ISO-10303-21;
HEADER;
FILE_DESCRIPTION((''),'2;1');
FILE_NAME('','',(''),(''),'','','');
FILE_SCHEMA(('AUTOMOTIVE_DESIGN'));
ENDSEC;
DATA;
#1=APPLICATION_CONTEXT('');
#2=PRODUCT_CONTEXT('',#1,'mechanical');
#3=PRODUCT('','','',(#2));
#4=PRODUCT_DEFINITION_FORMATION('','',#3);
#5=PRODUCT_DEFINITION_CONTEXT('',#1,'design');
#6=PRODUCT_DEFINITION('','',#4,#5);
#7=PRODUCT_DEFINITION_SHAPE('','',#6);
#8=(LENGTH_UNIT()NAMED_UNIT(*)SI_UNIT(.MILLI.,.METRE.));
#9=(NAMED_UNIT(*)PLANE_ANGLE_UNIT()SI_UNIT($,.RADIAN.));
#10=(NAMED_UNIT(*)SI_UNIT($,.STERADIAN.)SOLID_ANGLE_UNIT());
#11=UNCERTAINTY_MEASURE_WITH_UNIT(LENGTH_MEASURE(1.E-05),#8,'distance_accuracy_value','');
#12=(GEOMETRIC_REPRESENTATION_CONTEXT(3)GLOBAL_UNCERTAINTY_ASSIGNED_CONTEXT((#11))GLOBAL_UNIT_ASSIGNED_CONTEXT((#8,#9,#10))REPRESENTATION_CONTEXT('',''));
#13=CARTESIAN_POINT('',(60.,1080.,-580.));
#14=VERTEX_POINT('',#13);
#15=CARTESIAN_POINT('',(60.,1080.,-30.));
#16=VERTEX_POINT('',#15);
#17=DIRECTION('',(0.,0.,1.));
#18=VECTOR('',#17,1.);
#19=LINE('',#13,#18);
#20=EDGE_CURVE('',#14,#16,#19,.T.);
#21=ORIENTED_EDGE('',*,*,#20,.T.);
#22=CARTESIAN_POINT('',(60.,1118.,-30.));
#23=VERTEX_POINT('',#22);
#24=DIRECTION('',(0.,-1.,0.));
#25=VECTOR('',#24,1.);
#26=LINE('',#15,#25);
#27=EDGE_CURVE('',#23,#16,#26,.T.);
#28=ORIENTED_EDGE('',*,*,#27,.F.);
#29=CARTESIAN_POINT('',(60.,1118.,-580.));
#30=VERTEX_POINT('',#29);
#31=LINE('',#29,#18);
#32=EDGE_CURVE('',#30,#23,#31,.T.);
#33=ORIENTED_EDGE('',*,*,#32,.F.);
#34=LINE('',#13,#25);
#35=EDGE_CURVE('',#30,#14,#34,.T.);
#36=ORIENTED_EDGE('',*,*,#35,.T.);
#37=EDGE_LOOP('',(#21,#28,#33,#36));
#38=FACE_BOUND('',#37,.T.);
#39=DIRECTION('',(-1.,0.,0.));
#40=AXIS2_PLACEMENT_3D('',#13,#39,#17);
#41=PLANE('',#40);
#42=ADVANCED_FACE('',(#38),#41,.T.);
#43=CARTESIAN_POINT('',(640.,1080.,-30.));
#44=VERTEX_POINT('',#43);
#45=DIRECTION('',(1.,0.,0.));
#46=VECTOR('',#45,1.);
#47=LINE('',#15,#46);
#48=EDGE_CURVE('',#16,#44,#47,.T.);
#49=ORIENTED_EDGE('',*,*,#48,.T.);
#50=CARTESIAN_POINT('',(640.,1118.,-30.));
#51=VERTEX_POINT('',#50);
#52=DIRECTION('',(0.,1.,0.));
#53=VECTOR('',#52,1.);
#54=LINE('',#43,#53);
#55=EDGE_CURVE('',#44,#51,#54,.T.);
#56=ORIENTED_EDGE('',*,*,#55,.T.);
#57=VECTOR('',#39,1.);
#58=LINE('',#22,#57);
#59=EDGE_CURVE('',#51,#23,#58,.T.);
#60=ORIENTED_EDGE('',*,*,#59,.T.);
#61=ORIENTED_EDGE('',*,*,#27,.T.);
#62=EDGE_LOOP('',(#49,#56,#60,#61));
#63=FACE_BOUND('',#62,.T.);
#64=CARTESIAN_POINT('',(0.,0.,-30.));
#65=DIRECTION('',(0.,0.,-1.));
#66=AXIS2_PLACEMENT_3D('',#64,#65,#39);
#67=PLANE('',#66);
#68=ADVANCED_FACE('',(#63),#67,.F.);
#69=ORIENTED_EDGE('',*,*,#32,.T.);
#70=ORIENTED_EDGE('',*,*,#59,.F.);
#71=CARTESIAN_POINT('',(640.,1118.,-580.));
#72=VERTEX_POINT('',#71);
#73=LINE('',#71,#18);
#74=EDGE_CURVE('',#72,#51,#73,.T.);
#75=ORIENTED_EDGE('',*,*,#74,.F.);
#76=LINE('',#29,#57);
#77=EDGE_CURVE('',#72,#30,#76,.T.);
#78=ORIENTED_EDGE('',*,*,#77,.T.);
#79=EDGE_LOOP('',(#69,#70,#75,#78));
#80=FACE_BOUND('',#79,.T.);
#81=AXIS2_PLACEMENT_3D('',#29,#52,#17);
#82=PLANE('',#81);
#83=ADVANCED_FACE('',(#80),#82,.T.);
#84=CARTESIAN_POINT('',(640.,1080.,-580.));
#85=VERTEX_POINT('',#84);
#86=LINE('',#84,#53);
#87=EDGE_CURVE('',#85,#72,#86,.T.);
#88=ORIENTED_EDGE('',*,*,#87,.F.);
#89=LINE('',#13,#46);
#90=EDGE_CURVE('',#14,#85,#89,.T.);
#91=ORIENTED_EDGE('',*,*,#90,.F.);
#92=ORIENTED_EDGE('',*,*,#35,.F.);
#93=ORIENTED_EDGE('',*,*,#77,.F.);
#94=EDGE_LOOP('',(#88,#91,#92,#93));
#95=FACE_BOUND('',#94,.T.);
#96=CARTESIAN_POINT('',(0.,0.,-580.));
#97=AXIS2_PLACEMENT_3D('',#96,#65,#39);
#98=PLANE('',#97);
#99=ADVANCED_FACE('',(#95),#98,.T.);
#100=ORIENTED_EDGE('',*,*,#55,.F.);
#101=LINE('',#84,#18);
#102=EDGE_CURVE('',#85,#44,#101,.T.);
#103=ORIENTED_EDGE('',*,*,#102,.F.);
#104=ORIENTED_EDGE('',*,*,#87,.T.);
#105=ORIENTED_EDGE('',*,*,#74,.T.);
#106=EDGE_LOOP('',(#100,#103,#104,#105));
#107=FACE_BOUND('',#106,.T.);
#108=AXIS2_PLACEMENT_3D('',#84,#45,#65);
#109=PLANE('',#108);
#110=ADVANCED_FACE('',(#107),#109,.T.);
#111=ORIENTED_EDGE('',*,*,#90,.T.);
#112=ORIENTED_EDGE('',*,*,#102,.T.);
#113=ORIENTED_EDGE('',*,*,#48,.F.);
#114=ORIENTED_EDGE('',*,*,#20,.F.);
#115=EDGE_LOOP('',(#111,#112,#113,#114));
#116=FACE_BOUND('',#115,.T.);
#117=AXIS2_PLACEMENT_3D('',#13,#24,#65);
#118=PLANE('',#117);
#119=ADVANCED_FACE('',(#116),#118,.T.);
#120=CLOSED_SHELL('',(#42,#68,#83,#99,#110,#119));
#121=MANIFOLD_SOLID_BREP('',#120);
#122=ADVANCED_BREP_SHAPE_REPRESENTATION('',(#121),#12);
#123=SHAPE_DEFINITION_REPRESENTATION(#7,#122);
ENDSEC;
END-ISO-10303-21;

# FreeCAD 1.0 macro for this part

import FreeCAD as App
import Part
import Sketcher
from FreeCAD import Vector
Q = App.Units.Quantity


def add_polygon(sketch, points):
    """Adds a closed chain of lines whose ends are joined by coincident constraints."""
    first, n = sketch.GeometryCount, len(points)
    for a, b in zip(points, points[1:] + points[:1]):
        sketch.addGeometry(Part.LineSegment(App.Vector(*a, 0), App.Vector(*b, 0)), False)
    for i in range(n):
        sketch.addConstraint(Sketcher.Constraint("Coincident", first + i, 2, first + (i + 1) % n, 1))

doc = App.newDocument("Part")
body = doc.addObject("PartDesign::Body", "Body")

sketch1 = body.newObject("Sketcher::SketchObject", "Sketch")
sketch1.AttachmentSupport = (doc.getObject("XY_Plane"), [""])
sketch1.MapMode = "FlatFace"
sketch1.AttachmentOffset = App.Placement(Vector(0, 0, -30), App.Rotation())
add_polygon(sketch1, [(60, 1118), (60, 1080), (640, 1080), (640, 1118)])
sketch1.addConstraint([
    Sketcher.Constraint("Vertical", 0),
    Sketcher.Constraint("Horizontal", 1),
    Sketcher.Constraint("Vertical", 2),
    Sketcher.Constraint("Horizontal", 3),
    Sketcher.Constraint("DistanceX", 1, 1, 1, 2, Q("580 mm")),
    Sketcher.Constraint("DistanceY", 0, 2, 0, 1, Q("38 mm")),
    Sketcher.Constraint("DistanceX", -1, 1, 0, 2, Q("60 mm")),
    Sketcher.Constraint("DistanceY", -1, 1, 0, 2, Q("1080 mm")),
])
pad1 = body.newObject("PartDesign::Pad", "Pad")
pad1.Profile = sketch1
pad1.Length = 550
pad1.Reversed = True

doc.recompute()
